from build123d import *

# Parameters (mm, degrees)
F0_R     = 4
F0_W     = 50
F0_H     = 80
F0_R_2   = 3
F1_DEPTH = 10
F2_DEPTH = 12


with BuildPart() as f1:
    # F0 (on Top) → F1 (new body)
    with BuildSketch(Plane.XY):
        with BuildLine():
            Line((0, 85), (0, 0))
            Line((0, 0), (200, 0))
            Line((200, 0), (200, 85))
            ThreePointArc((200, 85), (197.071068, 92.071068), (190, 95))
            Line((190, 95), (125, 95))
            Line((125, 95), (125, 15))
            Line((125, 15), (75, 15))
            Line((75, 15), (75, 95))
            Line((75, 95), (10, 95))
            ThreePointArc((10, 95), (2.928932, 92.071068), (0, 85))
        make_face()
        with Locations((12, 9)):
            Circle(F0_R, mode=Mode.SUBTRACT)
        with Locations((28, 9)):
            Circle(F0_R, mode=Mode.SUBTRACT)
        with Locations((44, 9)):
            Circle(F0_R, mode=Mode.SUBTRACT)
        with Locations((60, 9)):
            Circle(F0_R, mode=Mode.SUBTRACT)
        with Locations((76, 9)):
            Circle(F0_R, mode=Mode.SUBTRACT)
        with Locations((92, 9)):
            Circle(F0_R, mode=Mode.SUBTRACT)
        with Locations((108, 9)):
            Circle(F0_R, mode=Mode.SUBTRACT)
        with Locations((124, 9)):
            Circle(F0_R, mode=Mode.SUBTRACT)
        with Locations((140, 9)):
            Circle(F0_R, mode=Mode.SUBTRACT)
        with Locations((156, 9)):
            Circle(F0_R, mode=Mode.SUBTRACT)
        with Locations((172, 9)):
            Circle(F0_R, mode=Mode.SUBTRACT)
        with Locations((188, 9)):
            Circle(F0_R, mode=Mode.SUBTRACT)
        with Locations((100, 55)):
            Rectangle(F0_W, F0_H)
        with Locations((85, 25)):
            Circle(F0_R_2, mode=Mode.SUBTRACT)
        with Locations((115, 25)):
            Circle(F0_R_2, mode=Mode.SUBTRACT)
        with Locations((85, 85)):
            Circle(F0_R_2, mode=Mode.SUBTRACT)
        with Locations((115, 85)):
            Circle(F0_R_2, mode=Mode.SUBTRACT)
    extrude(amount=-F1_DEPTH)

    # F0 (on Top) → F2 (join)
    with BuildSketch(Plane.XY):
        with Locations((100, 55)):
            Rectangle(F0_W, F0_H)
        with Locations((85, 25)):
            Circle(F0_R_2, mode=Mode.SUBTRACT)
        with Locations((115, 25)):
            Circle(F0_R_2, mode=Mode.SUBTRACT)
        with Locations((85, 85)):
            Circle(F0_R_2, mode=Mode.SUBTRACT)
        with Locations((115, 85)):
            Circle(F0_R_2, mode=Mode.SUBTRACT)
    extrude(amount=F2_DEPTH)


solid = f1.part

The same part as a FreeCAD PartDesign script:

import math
import FreeCAD as App
import Part
import Sketcher

V = App.Vector
Q = App.Units.Quantity

doc = App.newDocument("Part")
params = doc.addObject("Spreadsheet::Sheet", "Params")
for row, (alias, value) in enumerate([
    ("sketch1_diameter", "8 mm"),
    ("sketch1_diameter2", "6 mm"),
    ("sketch1_radius", "9.999999 mm"),
    ("sketch1_width", "200 mm"),
    ("sketch1_height", "85 mm"),
    ("pad1_length", "10 mm"),
    ("sketch2_diameter", "6 mm"),
    ("sketch2_width", "50 mm"),
    ("sketch2_height", "80 mm"),
    ("pad2_length", "12 mm"),
], start=1):
    params.set(f"A{row}", alias)
    params.set(f"B{row}", "=" + value)
    params.setAlias(f"B{row}", alias)

body = doc.addObject("PartDesign::Body", "Body")

sketch1 = body.newObject("Sketcher::SketchObject", "Sketch")
sketch1.AttachmentSupport = (doc.getObject("XY_Plane"), [""])
sketch1.MapMode = "FlatFace"
sketch1.addGeometry([
    Part.LineSegment(V(0, 85, 0), V(0, 0, 0)),
    Part.LineSegment(V(0, 0, 0), V(200, 0, 0)),
    Part.LineSegment(V(200, 0, 0), V(200, 85, 0)),
    Part.ArcOfCircle(Part.Circle(V(190, 85, 0), V(0, 0, 1), 10), math.radians(0), math.radians(90)),
    Part.LineSegment(V(190, 95, 0), V(10, 95, 0)),
    Part.ArcOfCircle(Part.Circle(V(10, 85, 0), V(0, 0, 1), 10), math.radians(90), math.radians(180)),
    Part.Circle(V(12, 9, 0), V(0, 0, 1), 4),
    Part.Circle(V(28, 9, 0), V(0, 0, 1), 4),
    Part.Circle(V(44, 9, 0), V(0, 0, 1), 4),
    Part.Circle(V(60, 9, 0), V(0, 0, 1), 4),
    Part.Circle(V(76, 9, 0), V(0, 0, 1), 4),
    Part.Circle(V(92, 9, 0), V(0, 0, 1), 4),
    Part.Circle(V(85, 25, 0), V(0, 0, 1), 3),
    Part.Circle(V(108, 9, 0), V(0, 0, 1), 4),
    Part.Circle(V(124, 9, 0), V(0, 0, 1), 4),
    Part.Circle(V(140, 9, 0), V(0, 0, 1), 4),
    Part.Circle(V(115, 25, 0), V(0, 0, 1), 3),
    Part.Circle(V(156, 9, 0), V(0, 0, 1), 4),
    Part.Circle(V(172, 9, 0), V(0, 0, 1), 4),
    Part.Circle(V(188, 9, 0), V(0, 0, 1), 4),
    Part.Circle(V(85, 85, 0), V(0, 0, 1), 3),
    Part.Circle(V(115, 85, 0), V(0, 0, 1), 3),
], False)
sketch1.addConstraint([
    Sketcher.Constraint("Coincident", 0, 2, 1, 1),
    Sketcher.Constraint("Coincident", 1, 2, 2, 1),
    Sketcher.Constraint("Tangent", 2, 2, 3, 1),
    Sketcher.Constraint("Tangent", 3, 2, 4, 1),
    Sketcher.Constraint("Tangent", 4, 2, 5, 1),
    Sketcher.Constraint("Tangent", 5, 2, 0, 1),
    Sketcher.Constraint("Vertical", 0),
    Sketcher.Constraint("Horizontal", 1),
    Sketcher.Constraint("Vertical", 2),
    Sketcher.Constraint("Horizontal", 4),
    Sketcher.Constraint("Coincident", 0, 2, -1, 1),
    Sketcher.Constraint("Equal", 3, 5),
    Sketcher.Constraint("Equal", 6, 7),
    Sketcher.Constraint("Equal", 7, 8),
    Sketcher.Constraint("Equal", 8, 9),
    Sketcher.Constraint("Equal", 9, 10),
    Sketcher.Constraint("Equal", 10, 11),
    Sketcher.Constraint("Equal", 11, 13),
    Sketcher.Constraint("Equal", 13, 14),
    Sketcher.Constraint("Equal", 14, 15),
    Sketcher.Constraint("Equal", 12, 16),
    Sketcher.Constraint("Equal", 15, 17),
    Sketcher.Constraint("Equal", 17, 18),
    Sketcher.Constraint("Equal", 18, 19),
    Sketcher.Constraint("Equal", 16, 20),
    Sketcher.Constraint("Equal", 20, 21),
    Sketcher.Constraint("Horizontal", 6, 3, 7, 3),
    Sketcher.Constraint("Horizontal", 7, 3, 8, 3),
    Sketcher.Constraint("Horizontal", 8, 3, 9, 3),
    Sketcher.Constraint("Horizontal", 9, 3, 10, 3),
    Sketcher.Constraint("Horizontal", 10, 3, 11, 3),
    Sketcher.Constraint("Horizontal", 11, 3, 13, 3),
    Sketcher.Constraint("Horizontal", 13, 3, 14, 3),
    Sketcher.Constraint("Horizontal", 14, 3, 15, 3),
    Sketcher.Constraint("Horizontal", 12, 3, 16, 3),
    Sketcher.Constraint("Horizontal", 15, 3, 17, 3),
    Sketcher.Constraint("Horizontal", 17, 3, 18, 3),
    Sketcher.Constraint("Horizontal", 18, 3, 19, 3),
    Sketcher.Constraint("Horizontal", 5, 3, 20, 3),
    Sketcher.Constraint("Horizontal", 20, 3, 21, 3),
    Sketcher.Constraint("Vertical", 12, 3, 20, 3),
    Sketcher.Constraint("Vertical", 16, 3, 21, 3),
    Sketcher.Constraint("Diameter", 6, Q("8 mm")),
    Sketcher.Constraint("Diameter", 12, Q("6 mm")),
    Sketcher.Constraint("Radius", 3, Q("9.999999 mm")),
    Sketcher.Constraint("DistanceX", 1, 1, 1, 2, Q("200 mm")),
    Sketcher.Constraint("DistanceY", 0, 2, 0, 1, Q("85 mm")),
    Sketcher.Constraint("DistanceX", -1, 1, 6, 3, Q("12 mm")),
    Sketcher.Constraint("DistanceY", -1, 1, 6, 3, Q("9 mm")),
    Sketcher.Constraint("DistanceX", -1, 1, 7, 3, Q("28 mm")),
    Sketcher.Constraint("DistanceX", -1, 1, 8, 3, Q("44 mm")),
    Sketcher.Constraint("DistanceX", -1, 1, 9, 3, Q("60 mm")),
    Sketcher.Constraint("DistanceX", -1, 1, 10, 3, Q("76 mm")),
    Sketcher.Constraint("DistanceX", -1, 1, 11, 3, Q("92 mm")),
    Sketcher.Constraint("DistanceX", -1, 1, 12, 3, Q("85 mm")),
    Sketcher.Constraint("DistanceY", -1, 1, 12, 3, Q("25 mm")),
    Sketcher.Constraint("DistanceX", -1, 1, 13, 3, Q("108 mm")),
    Sketcher.Constraint("DistanceX", -1, 1, 14, 3, Q("124 mm")),
    Sketcher.Constraint("DistanceX", -1, 1, 15, 3, Q("140 mm")),
    Sketcher.Constraint("DistanceX", -1, 1, 16, 3, Q("115 mm")),
    Sketcher.Constraint("DistanceX", -1, 1, 17, 3, Q("156 mm")),
    Sketcher.Constraint("DistanceX", -1, 1, 18, 3, Q("172 mm")),
    Sketcher.Constraint("DistanceX", -1, 1, 19, 3, Q("188 mm")),
])
sketch1.setExpression("Constraints[42]", "Params.sketch1_diameter")
sketch1.setExpression("Constraints[43]", "Params.sketch1_diameter2")
sketch1.setExpression("Constraints[44]", "Params.sketch1_radius")
sketch1.setExpression("Constraints[45]", "Params.sketch1_width")
sketch1.setExpression("Constraints[46]", "Params.sketch1_height")
pad1 = body.newObject("PartDesign::Pad", "Pad")
pad1.Profile = sketch1
pad1.setExpression("Length", "Params.pad1_length")
pad1.Reversed = True

sketch2 = body.newObject("Sketcher::SketchObject", "Sketch001")
sketch2.AttachmentSupport = (doc.getObject("XY_Plane"), [""])
sketch2.MapMode = "FlatFace"
sketch2.addGeometry([
    Part.LineSegment(V(75, 95, 0), V(75, 15, 0)),
    Part.LineSegment(V(75, 15, 0), V(125, 15, 0)),
    Part.LineSegment(V(125, 15, 0), V(125, 95, 0)),
    Part.LineSegment(V(125, 95, 0), V(75, 95, 0)),
    Part.Circle(V(85, 25, 0), V(0, 0, 1), 3),
    Part.Circle(V(115, 25, 0), V(0, 0, 1), 3),
    Part.Circle(V(85, 85, 0), V(0, 0, 1), 3),
    Part.Circle(V(115, 85, 0), V(0, 0, 1), 3),
], False)
sketch2.addConstraint([
    Sketcher.Constraint("Coincident", 0, 2, 1, 1),
    Sketcher.Constraint("Coincident", 1, 2, 2, 1),
    Sketcher.Constraint("Coincident", 2, 2, 3, 1),
    Sketcher.Constraint("Coincident", 3, 2, 0, 1),
    Sketcher.Constraint("Vertical", 0),
    Sketcher.Constraint("Horizontal", 1),
    Sketcher.Constraint("Vertical", 2),
    Sketcher.Constraint("Horizontal", 3),
    Sketcher.Constraint("Equal", 4, 5),
    Sketcher.Constraint("Equal", 5, 6),
    Sketcher.Constraint("Equal", 6, 7),
    Sketcher.Constraint("Horizontal", 4, 3, 5, 3),
    Sketcher.Constraint("Horizontal", 6, 3, 7, 3),
    Sketcher.Constraint("Vertical", 4, 3, 6, 3),
    Sketcher.Constraint("Vertical", 5, 3, 7, 3),
    Sketcher.Constraint("Diameter", 4, Q("6 mm")),
    Sketcher.Constraint("DistanceX", 1, 1, 1, 2, Q("50 mm")),
    Sketcher.Constraint("DistanceY", 0, 2, 0, 1, Q("80 mm")),
    Sketcher.Constraint("DistanceX", -1, 1, 4, 3, Q("85 mm")),
    Sketcher.Constraint("DistanceY", -1, 1, 4, 3, Q("25 mm")),
    Sketcher.Constraint("DistanceX", -1, 1, 5, 3, Q("115 mm")),
    Sketcher.Constraint("DistanceY", -1, 1, 6, 3, Q("85 mm")),
    Sketcher.Constraint("DistanceX", -1, 1, 0, 2, Q("75 mm")),
    Sketcher.Constraint("DistanceY", -1, 1, 0, 2, Q("15 mm")),
])
sketch2.setExpression("Constraints[15]", "Params.sketch2_diameter")
sketch2.setExpression("Constraints[16]", "Params.sketch2_width")
sketch2.setExpression("Constraints[17]", "Params.sketch2_height")
pad2 = body.newObject("PartDesign::Pad", "Pad001")
pad2.Profile = sketch2
pad2.setExpression("Length", "Params.pad2_length")

doc.recompute()
